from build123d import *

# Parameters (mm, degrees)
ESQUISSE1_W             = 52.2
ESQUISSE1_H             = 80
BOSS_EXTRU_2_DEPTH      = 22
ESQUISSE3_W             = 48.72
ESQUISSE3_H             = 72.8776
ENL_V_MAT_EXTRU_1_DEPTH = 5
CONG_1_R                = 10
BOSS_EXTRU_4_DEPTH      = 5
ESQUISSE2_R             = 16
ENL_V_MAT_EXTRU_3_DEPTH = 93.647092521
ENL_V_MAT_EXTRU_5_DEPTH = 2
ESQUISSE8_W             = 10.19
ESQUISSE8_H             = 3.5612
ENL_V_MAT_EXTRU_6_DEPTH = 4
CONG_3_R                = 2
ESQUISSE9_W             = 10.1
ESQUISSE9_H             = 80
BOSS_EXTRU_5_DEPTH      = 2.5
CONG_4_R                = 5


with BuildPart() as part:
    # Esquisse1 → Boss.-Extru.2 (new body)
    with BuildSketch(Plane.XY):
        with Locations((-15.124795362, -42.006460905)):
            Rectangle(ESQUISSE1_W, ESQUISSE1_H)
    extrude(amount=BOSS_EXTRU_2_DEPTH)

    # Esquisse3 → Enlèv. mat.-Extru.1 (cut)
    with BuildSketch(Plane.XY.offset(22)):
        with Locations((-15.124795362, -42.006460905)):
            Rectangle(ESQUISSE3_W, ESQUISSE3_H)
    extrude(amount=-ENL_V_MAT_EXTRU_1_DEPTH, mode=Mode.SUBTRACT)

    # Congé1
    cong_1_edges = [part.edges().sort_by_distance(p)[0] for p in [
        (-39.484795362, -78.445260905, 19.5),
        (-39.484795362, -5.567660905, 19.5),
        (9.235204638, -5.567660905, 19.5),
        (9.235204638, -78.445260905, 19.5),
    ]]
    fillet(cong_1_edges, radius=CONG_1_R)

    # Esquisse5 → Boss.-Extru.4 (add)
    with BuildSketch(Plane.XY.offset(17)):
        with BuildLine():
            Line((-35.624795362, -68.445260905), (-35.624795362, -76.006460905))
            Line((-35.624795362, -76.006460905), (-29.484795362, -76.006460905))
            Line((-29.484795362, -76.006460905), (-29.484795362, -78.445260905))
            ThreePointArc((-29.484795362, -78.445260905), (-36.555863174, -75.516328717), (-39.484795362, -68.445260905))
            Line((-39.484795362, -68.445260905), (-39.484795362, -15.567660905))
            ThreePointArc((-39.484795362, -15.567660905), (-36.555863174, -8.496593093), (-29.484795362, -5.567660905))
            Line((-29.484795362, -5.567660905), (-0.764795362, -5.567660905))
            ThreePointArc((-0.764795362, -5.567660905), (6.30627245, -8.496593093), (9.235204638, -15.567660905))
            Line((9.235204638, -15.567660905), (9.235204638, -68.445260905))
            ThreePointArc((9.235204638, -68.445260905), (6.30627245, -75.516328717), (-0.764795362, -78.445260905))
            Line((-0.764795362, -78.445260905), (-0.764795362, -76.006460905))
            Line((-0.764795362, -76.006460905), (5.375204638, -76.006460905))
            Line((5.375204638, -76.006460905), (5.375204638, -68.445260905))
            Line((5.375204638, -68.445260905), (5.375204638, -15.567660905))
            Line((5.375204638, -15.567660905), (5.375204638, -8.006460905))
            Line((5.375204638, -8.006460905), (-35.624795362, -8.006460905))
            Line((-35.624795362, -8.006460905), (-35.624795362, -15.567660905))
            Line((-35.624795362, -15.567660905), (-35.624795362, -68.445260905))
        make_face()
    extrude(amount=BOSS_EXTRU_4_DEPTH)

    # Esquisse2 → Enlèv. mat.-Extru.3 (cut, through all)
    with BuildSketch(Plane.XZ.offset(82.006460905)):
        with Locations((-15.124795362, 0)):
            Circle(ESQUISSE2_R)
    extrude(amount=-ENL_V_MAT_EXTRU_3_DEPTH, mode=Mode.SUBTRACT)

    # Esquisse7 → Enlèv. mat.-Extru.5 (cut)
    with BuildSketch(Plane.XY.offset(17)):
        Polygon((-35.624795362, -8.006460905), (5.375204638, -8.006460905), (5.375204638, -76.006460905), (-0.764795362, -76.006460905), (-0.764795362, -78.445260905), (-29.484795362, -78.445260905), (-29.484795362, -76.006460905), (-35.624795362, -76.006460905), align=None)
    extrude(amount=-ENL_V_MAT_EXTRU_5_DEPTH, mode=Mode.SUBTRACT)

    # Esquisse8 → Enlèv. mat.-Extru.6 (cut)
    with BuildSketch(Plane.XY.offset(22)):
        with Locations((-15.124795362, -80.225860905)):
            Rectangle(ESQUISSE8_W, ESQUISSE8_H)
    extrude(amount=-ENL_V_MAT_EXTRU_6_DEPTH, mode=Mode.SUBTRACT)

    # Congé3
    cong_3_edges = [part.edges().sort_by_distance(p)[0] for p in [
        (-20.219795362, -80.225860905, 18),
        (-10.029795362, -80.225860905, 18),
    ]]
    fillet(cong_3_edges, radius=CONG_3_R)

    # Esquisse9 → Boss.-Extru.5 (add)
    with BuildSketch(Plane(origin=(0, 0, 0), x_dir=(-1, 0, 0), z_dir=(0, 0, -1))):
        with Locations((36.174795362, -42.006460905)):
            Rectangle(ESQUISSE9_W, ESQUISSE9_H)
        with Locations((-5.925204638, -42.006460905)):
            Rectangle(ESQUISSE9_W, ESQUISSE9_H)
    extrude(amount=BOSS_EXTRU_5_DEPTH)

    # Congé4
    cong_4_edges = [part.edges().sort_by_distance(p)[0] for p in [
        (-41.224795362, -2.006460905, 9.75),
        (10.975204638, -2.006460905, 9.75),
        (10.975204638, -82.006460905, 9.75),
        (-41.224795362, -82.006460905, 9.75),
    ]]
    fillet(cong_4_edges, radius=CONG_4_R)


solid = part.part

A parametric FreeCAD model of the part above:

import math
import FreeCAD as App
import Part
import Sketcher

V = App.Vector


def edges_at(feature, points):
    """Names of the edges that pass closest to the given points."""
    edges = feature.Shape.Edges
    near = lambda p: min(range(len(edges)), key=lambda i: edges[i].distToShape(Part.Vertex(*p))[0])
    return sorted({f"Edge{near(p) + 1}" for p in points})


def add_polygon(sketch, points):
    """Adds a closed chain of lines whose ends are joined by coincident constraints."""
    first, n = sketch.GeometryCount, len(points)
    for a, b in zip(points, points[1:] + points[:1]):
        sketch.addGeometry(Part.LineSegment(App.Vector(*a, 0), App.Vector(*b, 0)), False)
    for i in range(n):
        sketch.addConstraint(Sketcher.Constraint("Coincident", first + i, 2, first + (i + 1) % n, 1))

doc = App.newDocument("Part")
body = doc.addObject("PartDesign::Body", "Body")

sketch1 = body.newObject("Sketcher::SketchObject", "Sketch")
sketch1.AttachmentSupport = (doc.getObject("XY_Plane"), [""])
sketch1.MapMode = "FlatFace"
add_polygon(sketch1, [(-41, -2), (-41, -82), (11, -82), (11, -2)])
sketch1.addConstraint(Sketcher.Constraint("Vertical", 0))
sketch1.addConstraint(Sketcher.Constraint("Horizontal", 1))
sketch1.addConstraint(Sketcher.Constraint("Vertical", 2))
sketch1.addConstraint(Sketcher.Constraint("Horizontal", 3))
sketch1.addConstraint(Sketcher.Constraint("DistanceY", 0, 2, 0, 1, 80.0))
sketch1.addConstraint(Sketcher.Constraint("DistanceX", 1, 1, 1, 2, 52.2))
sketch1.addConstraint(Sketcher.Constraint("DistanceY", 0, 2, -1, 1, 82.006461))
sketch1.addConstraint(Sketcher.Constraint("DistanceX", 0, 2, -1, 1, 41.224795))
pad1 = body.newObject("PartDesign::Pad", "Pad")
pad1.Profile = sketch1
pad1.Length = 22

sketch2 = body.newObject("Sketcher::SketchObject", "Sketch001")
sketch2.AttachmentSupport = (doc.getObject("XY_Plane"), [""])
sketch2.MapMode = "FlatFace"
sketch2.AttachmentOffset = App.Placement(V(0, 0, 22), App.Rotation())
add_polygon(sketch2, [(-39, -6), (-39, -78), (9, -78), (9, -6)])
sketch2.addConstraint(Sketcher.Constraint("Vertical", 0))
sketch2.addConstraint(Sketcher.Constraint("Horizontal", 1))
sketch2.addConstraint(Sketcher.Constraint("Vertical", 2))
sketch2.addConstraint(Sketcher.Constraint("Horizontal", 3))
sketch2.addConstraint(Sketcher.Constraint("DistanceX", 1, 1, 1, 2, 48.72))
sketch2.addConstraint(Sketcher.Constraint("DistanceY", 0, 2, 0, 1, 72.8776))
sketch2.addConstraint(Sketcher.Constraint("DistanceY", 0, 2, -1, 1, 78.445261))
sketch2.addConstraint(Sketcher.Constraint("DistanceX", 0, 2, -1, 1, 39.484795))
pocket1 = body.newObject("PartDesign::Pocket", "Pocket")
pocket1.Profile = sketch2
pocket1.Length = 5
doc.recompute()

fillet = body.newObject("PartDesign::Fillet", "Fillet")
fillet.Base = (pocket1, edges_at(pocket1, [
    (-39.485, -78.445, 19.5),
    (-39.485, -5.568, 19.5),
    (9.235, -5.568, 19.5),
    (9.235, -78.445, 19.5),
]))
fillet.Radius = 10

sketch3 = body.newObject("Sketcher::SketchObject", "Sketch002")
sketch3.AttachmentSupport = (doc.getObject("XY_Plane"), [""])
sketch3.MapMode = "FlatFace"
sketch3.AttachmentOffset = App.Placement(V(0, 0, 17), App.Rotation())
sketch3.addGeometry(Part.LineSegment(V(-29.5, -76, 0), V(-35.6, -76, 0)), False)
sketch3.addGeometry(Part.LineSegment(V(-35.6, -76, 0), V(-35.6, -8, 0)), False)
sketch3.addGeometry(Part.LineSegment(V(-35.6, -8, 0), V(5.4, -8, 0)), False)
sketch3.addGeometry(Part.LineSegment(V(5.4, -8, 0), V(5.4, -76, 0)), False)
sketch3.addGeometry(Part.LineSegment(V(5.4, -76, 0), V(-0.8, -76, 0)), False)
sketch3.addGeometry(Part.LineSegment(V(-0.8, -76, 0), V(-0.8, -78.4, 0)), False)
sketch3.addGeometry(Part.ArcOfCircle(Part.Circle(V(-0.8, -68.4, 0), V(0, 0, 1), 10), math.radians(-90), math.radians(0)), False)
sketch3.addGeometry(Part.LineSegment(V(9.2, -68.4, 0), V(9.2, -15.6, 0)), False)
sketch3.addGeometry(Part.ArcOfCircle(Part.Circle(V(-0.8, -15.6, 0), V(0, 0, 1), 10), math.radians(0), math.radians(90)), False)
sketch3.addGeometry(Part.LineSegment(V(-0.8, -5.6, 0), V(-29.5, -5.6, 0)), False)
sketch3.addGeometry(Part.ArcOfCircle(Part.Circle(V(-29.5, -15.6, 0), V(0, 0, 1), 10), math.radians(90), math.radians(180)), False)
sketch3.addGeometry(Part.LineSegment(V(-39.5, -15.6, 0), V(-39.5, -68.4, 0)), False)
sketch3.addGeometry(Part.ArcOfCircle(Part.Circle(V(-29.5, -68.4, 0), V(0, 0, 1), 10), math.radians(180), math.radians(270)), False)
sketch3.addGeometry(Part.LineSegment(V(-29.5, -78.4, 0), V(-29.5, -76, 0)), False)
sketch3.addConstraint(Sketcher.Constraint("Coincident", 0, 2, 1, 1))
sketch3.addConstraint(Sketcher.Constraint("Coincident", 1, 2, 2, 1))
sketch3.addConstraint(Sketcher.Constraint("Coincident", 2, 2, 3, 1))
sketch3.addConstraint(Sketcher.Constraint("Coincident", 3, 2, 4, 1))
sketch3.addConstraint(Sketcher.Constraint("Coincident", 4, 2, 5, 1))
sketch3.addConstraint(Sketcher.Constraint("Coincident", 5, 2, 6, 1))
sketch3.addConstraint(Sketcher.Constraint("Tangent", 6, 2, 7, 1))
sketch3.addConstraint(Sketcher.Constraint("Tangent", 7, 2, 8, 1))
sketch3.addConstraint(Sketcher.Constraint("Tangent", 8, 2, 9, 1))
sketch3.addConstraint(Sketcher.Constraint("Tangent", 9, 2, 10, 1))
sketch3.addConstraint(Sketcher.Constraint("Tangent", 10, 2, 11, 1))
sketch3.addConstraint(Sketcher.Constraint("Tangent", 11, 2, 12, 1))
sketch3.addConstraint(Sketcher.Constraint("Coincident", 12, 2, 13, 1))
sketch3.addConstraint(Sketcher.Constraint("Coincident", 13, 2, 0, 1))
sketch3.addConstraint(Sketcher.Constraint("Horizontal", 0))
sketch3.addConstraint(Sketcher.Constraint("Vertical", 1))
sketch3.addConstraint(Sketcher.Constraint("Horizontal", 2))
sketch3.addConstraint(Sketcher.Constraint("Vertical", 3))
sketch3.addConstraint(Sketcher.Constraint("Horizontal", 4))
sketch3.addConstraint(Sketcher.Constraint("Vertical", 5))
sketch3.addConstraint(Sketcher.Constraint("Vertical", 7))
sketch3.addConstraint(Sketcher.Constraint("Horizontal", 9))
sketch3.addConstraint(Sketcher.Constraint("Vertical", 11))
sketch3.addConstraint(Sketcher.Constraint("Vertical", 13))
sketch3.addConstraint(Sketcher.Constraint("Equal", 6, 8))
sketch3.addConstraint(Sketcher.Constraint("Equal", 8, 10))
sketch3.addConstraint(Sketcher.Constraint("Equal", 10, 12))
sketch3.addConstraint(Sketcher.Constraint("Horizontal", 6, 3, 12, 3))
sketch3.addConstraint(Sketcher.Constraint("Horizontal", 0, 2, 3, 2))
sketch3.addConstraint(Sketcher.Constraint("Vertical", 8, 3, 4, 2))
sketch3.addConstraint(Sketcher.Constraint("Vertical", 9, 2, 12, 2))
sketch3.addConstraint(Sketcher.Constraint("Equal", 0, 4))
sketch3.addConstraint(Sketcher.Constraint("Radius", 6, 10.0))
sketch3.addConstraint(Sketcher.Constraint("DistanceX", 2, 1, 2, 2, 41.0))
sketch3.addConstraint(Sketcher.Constraint("DistanceY", 1, 1, 1, 2, 68.0))
sketch3.addConstraint(Sketcher.Constraint("DistanceX", 0, 2, 0, 1, 6.14))
sketch3.addConstraint(Sketcher.Constraint("DistanceY", 5, 2, 5, 1, 2.4388))
sketch3.addConstraint(Sketcher.Constraint("DistanceY", 7, 1, 7, 2, 52.8776))
sketch3.addConstraint(Sketcher.Constraint("DistanceY", 6, 3, -1, 1, 68.445261))
sketch3.addConstraint(Sketcher.Constraint("DistanceX", 6, 3, -1, 1, 0.764795))
pad2 = body.newObject("PartDesign::Pad", "Pad001")
pad2.Profile = sketch3
pad2.Length = 5

sketch4 = body.newObject("Sketcher::SketchObject", "Sketch003")
sketch4.AttachmentSupport = (doc.getObject("XZ_Plane"), [""])
sketch4.MapMode = "FlatFace"
sketch4.AttachmentOffset = App.Placement(V(0, 0, 82.006461), App.Rotation())
sketch4.addGeometry(Part.Circle(V(-15, 0, 0), V(0, 0, 1), 16), False)
sketch4.addConstraint(Sketcher.Constraint("PointOnObject", 0, 3, -1))
sketch4.addConstraint(Sketcher.Constraint("Diameter", 0, 32.0))
sketch4.addConstraint(Sketcher.Constraint("DistanceX", 0, 3, -1, 1, 15.124795))
pocket2 = body.newObject("PartDesign::Pocket", "Pocket001")
pocket2.Profile = sketch4
pocket2.Type = "ThroughAll"

sketch5 = body.newObject("Sketcher::SketchObject", "Sketch004")
sketch5.AttachmentSupport = (doc.getObject("XY_Plane"), [""])
sketch5.MapMode = "FlatFace"
sketch5.AttachmentOffset = App.Placement(V(0, 0, 17), App.Rotation())
add_polygon(sketch5, [(5.4, -8), (-35.6, -8), (-35.6, -76), (-29.5, -76), (-29.5, -78.4), (-0.8, -78.4), (-0.8, -76), (5.4, -76)])
sketch5.addConstraint(Sketcher.Constraint("Horizontal", 0))
sketch5.addConstraint(Sketcher.Constraint("Vertical", 1))
sketch5.addConstraint(Sketcher.Constraint("Horizontal", 2))
sketch5.addConstraint(Sketcher.Constraint("Vertical", 3))
sketch5.addConstraint(Sketcher.Constraint("Horizontal", 4))
sketch5.addConstraint(Sketcher.Constraint("Vertical", 5))
sketch5.addConstraint(Sketcher.Constraint("Horizontal", 6))
sketch5.addConstraint(Sketcher.Constraint("Vertical", 7))
sketch5.addConstraint(Sketcher.Constraint("Horizontal", 2, 2, 5, 2))
sketch5.addConstraint(Sketcher.Constraint("Equal", 2, 6))
sketch5.addConstraint(Sketcher.Constraint("DistanceX", 0, 2, 0, 1, 41.0))
sketch5.addConstraint(Sketcher.Constraint("DistanceY", 1, 2, 1, 1, 68.0))
sketch5.addConstraint(Sketcher.Constraint("DistanceX", 2, 1, 2, 2, 6.14))
sketch5.addConstraint(Sketcher.Constraint("DistanceY", 3, 2, 3, 1, 2.4388))
sketch5.addConstraint(Sketcher.Constraint("DistanceY", 0, 2, -1, 1, 8.006461))
sketch5.addConstraint(Sketcher.Constraint("DistanceX", 0, 2, -1, 1, 35.624795))
pocket3 = body.newObject("PartDesign::Pocket", "Pocket002")
pocket3.Profile = sketch5
pocket3.Length = 2

sketch6 = body.newObject("Sketcher::SketchObject", "Sketch005")
sketch6.AttachmentSupport = (doc.getObject("XY_Plane"), [""])
sketch6.MapMode = "FlatFace"
sketch6.AttachmentOffset = App.Placement(V(0, 0, 22), App.Rotation())
add_polygon(sketch6, [(-20.2, -78.4), (-20.2, -82), (-10, -82), (-10, -78.4)])
sketch6.addConstraint(Sketcher.Constraint("Vertical", 0))
sketch6.addConstraint(Sketcher.Constraint("Horizontal", 1))
sketch6.addConstraint(Sketcher.Constraint("Vertical", 2))
sketch6.addConstraint(Sketcher.Constraint("Horizontal", 3))
sketch6.addConstraint(Sketcher.Constraint("DistanceX", 1, 1, 1, 2, 10.19))
sketch6.addConstraint(Sketcher.Constraint("DistanceY", 0, 2, 0, 1, 3.5612))
sketch6.addConstraint(Sketcher.Constraint("DistanceY", 0, 2, -1, 1, 82.006461))
sketch6.addConstraint(Sketcher.Constraint("DistanceX", 0, 2, -1, 1, 20.219795))
pocket4 = body.newObject("PartDesign::Pocket", "Pocket003")
pocket4.Profile = sketch6
pocket4.Length = 4
doc.recompute()

fillet2 = body.newObject("PartDesign::Fillet", "Fillet001")
fillet2.Base = (pocket4, edges_at(pocket4, [(-20.22, -80.226, 18), (-10.03, -80.226, 18)]))
fillet2.Radius = 2

sketch7 = body.newObject("Sketcher::SketchObject", "Sketch006")
sketch7.AttachmentSupport = (doc.getObject("XY_Plane"), [""])
sketch7.MapMode = "FlatFace"
add_polygon(sketch7, [(-31, -2), (-31, -82), (-41, -82), (-41, -2)])
add_polygon(sketch7, [(11, -2), (11, -82), (1, -82), (1, -2)])
sketch7.addConstraint(Sketcher.Constraint("Vertical", 0))
sketch7.addConstraint(Sketcher.Constraint("Horizontal", 1))
sketch7.addConstraint(Sketcher.Constraint("Vertical", 2))
sketch7.addConstraint(Sketcher.Constraint("Horizontal", 3))
sketch7.addConstraint(Sketcher.Constraint("Vertical", 4))
sketch7.addConstraint(Sketcher.Constraint("Horizontal", 5))
sketch7.addConstraint(Sketcher.Constraint("Vertical", 6))
sketch7.addConstraint(Sketcher.Constraint("Horizontal", 7))
sketch7.addConstraint(Sketcher.Constraint("Horizontal", 1, 2, 4, 2))
sketch7.addConstraint(Sketcher.Constraint("Horizontal", 3, 2, 6, 2))
sketch7.addConstraint(Sketcher.Constraint("Equal", 3, 5))
sketch7.addConstraint(Sketcher.Constraint("DistanceY", 0, 2, 0, 1, 80.0))
sketch7.addConstraint(Sketcher.Constraint("DistanceX", 1, 2, 1, 1, 10.1))
sketch7.addConstraint(Sketcher.Constraint("DistanceX", 0, 2, 5, 2, 32.0))
sketch7.addConstraint(Sketcher.Constraint("DistanceY", 0, 2, -1, 1, 82.006461))
sketch7.addConstraint(Sketcher.Constraint("DistanceX", 0, 2, -1, 1, 31.124795))
pad3 = body.newObject("PartDesign::Pad", "Pad002")
pad3.Profile = sketch7
pad3.Length = 2.5
pad3.Reversed = True
doc.recompute()

fillet3 = body.newObject("PartDesign::Fillet", "Fillet002")
fillet3.Base = (pad3, edges_at(pad3, [
    (-41.225, -2.006, 9.75),
    (10.975, -2.006, 9.75),
    (10.975, -82.006, 9.75),
    (-41.225, -82.006, 9.75),
]))
fillet3.Radius = 5

doc.recompute()
